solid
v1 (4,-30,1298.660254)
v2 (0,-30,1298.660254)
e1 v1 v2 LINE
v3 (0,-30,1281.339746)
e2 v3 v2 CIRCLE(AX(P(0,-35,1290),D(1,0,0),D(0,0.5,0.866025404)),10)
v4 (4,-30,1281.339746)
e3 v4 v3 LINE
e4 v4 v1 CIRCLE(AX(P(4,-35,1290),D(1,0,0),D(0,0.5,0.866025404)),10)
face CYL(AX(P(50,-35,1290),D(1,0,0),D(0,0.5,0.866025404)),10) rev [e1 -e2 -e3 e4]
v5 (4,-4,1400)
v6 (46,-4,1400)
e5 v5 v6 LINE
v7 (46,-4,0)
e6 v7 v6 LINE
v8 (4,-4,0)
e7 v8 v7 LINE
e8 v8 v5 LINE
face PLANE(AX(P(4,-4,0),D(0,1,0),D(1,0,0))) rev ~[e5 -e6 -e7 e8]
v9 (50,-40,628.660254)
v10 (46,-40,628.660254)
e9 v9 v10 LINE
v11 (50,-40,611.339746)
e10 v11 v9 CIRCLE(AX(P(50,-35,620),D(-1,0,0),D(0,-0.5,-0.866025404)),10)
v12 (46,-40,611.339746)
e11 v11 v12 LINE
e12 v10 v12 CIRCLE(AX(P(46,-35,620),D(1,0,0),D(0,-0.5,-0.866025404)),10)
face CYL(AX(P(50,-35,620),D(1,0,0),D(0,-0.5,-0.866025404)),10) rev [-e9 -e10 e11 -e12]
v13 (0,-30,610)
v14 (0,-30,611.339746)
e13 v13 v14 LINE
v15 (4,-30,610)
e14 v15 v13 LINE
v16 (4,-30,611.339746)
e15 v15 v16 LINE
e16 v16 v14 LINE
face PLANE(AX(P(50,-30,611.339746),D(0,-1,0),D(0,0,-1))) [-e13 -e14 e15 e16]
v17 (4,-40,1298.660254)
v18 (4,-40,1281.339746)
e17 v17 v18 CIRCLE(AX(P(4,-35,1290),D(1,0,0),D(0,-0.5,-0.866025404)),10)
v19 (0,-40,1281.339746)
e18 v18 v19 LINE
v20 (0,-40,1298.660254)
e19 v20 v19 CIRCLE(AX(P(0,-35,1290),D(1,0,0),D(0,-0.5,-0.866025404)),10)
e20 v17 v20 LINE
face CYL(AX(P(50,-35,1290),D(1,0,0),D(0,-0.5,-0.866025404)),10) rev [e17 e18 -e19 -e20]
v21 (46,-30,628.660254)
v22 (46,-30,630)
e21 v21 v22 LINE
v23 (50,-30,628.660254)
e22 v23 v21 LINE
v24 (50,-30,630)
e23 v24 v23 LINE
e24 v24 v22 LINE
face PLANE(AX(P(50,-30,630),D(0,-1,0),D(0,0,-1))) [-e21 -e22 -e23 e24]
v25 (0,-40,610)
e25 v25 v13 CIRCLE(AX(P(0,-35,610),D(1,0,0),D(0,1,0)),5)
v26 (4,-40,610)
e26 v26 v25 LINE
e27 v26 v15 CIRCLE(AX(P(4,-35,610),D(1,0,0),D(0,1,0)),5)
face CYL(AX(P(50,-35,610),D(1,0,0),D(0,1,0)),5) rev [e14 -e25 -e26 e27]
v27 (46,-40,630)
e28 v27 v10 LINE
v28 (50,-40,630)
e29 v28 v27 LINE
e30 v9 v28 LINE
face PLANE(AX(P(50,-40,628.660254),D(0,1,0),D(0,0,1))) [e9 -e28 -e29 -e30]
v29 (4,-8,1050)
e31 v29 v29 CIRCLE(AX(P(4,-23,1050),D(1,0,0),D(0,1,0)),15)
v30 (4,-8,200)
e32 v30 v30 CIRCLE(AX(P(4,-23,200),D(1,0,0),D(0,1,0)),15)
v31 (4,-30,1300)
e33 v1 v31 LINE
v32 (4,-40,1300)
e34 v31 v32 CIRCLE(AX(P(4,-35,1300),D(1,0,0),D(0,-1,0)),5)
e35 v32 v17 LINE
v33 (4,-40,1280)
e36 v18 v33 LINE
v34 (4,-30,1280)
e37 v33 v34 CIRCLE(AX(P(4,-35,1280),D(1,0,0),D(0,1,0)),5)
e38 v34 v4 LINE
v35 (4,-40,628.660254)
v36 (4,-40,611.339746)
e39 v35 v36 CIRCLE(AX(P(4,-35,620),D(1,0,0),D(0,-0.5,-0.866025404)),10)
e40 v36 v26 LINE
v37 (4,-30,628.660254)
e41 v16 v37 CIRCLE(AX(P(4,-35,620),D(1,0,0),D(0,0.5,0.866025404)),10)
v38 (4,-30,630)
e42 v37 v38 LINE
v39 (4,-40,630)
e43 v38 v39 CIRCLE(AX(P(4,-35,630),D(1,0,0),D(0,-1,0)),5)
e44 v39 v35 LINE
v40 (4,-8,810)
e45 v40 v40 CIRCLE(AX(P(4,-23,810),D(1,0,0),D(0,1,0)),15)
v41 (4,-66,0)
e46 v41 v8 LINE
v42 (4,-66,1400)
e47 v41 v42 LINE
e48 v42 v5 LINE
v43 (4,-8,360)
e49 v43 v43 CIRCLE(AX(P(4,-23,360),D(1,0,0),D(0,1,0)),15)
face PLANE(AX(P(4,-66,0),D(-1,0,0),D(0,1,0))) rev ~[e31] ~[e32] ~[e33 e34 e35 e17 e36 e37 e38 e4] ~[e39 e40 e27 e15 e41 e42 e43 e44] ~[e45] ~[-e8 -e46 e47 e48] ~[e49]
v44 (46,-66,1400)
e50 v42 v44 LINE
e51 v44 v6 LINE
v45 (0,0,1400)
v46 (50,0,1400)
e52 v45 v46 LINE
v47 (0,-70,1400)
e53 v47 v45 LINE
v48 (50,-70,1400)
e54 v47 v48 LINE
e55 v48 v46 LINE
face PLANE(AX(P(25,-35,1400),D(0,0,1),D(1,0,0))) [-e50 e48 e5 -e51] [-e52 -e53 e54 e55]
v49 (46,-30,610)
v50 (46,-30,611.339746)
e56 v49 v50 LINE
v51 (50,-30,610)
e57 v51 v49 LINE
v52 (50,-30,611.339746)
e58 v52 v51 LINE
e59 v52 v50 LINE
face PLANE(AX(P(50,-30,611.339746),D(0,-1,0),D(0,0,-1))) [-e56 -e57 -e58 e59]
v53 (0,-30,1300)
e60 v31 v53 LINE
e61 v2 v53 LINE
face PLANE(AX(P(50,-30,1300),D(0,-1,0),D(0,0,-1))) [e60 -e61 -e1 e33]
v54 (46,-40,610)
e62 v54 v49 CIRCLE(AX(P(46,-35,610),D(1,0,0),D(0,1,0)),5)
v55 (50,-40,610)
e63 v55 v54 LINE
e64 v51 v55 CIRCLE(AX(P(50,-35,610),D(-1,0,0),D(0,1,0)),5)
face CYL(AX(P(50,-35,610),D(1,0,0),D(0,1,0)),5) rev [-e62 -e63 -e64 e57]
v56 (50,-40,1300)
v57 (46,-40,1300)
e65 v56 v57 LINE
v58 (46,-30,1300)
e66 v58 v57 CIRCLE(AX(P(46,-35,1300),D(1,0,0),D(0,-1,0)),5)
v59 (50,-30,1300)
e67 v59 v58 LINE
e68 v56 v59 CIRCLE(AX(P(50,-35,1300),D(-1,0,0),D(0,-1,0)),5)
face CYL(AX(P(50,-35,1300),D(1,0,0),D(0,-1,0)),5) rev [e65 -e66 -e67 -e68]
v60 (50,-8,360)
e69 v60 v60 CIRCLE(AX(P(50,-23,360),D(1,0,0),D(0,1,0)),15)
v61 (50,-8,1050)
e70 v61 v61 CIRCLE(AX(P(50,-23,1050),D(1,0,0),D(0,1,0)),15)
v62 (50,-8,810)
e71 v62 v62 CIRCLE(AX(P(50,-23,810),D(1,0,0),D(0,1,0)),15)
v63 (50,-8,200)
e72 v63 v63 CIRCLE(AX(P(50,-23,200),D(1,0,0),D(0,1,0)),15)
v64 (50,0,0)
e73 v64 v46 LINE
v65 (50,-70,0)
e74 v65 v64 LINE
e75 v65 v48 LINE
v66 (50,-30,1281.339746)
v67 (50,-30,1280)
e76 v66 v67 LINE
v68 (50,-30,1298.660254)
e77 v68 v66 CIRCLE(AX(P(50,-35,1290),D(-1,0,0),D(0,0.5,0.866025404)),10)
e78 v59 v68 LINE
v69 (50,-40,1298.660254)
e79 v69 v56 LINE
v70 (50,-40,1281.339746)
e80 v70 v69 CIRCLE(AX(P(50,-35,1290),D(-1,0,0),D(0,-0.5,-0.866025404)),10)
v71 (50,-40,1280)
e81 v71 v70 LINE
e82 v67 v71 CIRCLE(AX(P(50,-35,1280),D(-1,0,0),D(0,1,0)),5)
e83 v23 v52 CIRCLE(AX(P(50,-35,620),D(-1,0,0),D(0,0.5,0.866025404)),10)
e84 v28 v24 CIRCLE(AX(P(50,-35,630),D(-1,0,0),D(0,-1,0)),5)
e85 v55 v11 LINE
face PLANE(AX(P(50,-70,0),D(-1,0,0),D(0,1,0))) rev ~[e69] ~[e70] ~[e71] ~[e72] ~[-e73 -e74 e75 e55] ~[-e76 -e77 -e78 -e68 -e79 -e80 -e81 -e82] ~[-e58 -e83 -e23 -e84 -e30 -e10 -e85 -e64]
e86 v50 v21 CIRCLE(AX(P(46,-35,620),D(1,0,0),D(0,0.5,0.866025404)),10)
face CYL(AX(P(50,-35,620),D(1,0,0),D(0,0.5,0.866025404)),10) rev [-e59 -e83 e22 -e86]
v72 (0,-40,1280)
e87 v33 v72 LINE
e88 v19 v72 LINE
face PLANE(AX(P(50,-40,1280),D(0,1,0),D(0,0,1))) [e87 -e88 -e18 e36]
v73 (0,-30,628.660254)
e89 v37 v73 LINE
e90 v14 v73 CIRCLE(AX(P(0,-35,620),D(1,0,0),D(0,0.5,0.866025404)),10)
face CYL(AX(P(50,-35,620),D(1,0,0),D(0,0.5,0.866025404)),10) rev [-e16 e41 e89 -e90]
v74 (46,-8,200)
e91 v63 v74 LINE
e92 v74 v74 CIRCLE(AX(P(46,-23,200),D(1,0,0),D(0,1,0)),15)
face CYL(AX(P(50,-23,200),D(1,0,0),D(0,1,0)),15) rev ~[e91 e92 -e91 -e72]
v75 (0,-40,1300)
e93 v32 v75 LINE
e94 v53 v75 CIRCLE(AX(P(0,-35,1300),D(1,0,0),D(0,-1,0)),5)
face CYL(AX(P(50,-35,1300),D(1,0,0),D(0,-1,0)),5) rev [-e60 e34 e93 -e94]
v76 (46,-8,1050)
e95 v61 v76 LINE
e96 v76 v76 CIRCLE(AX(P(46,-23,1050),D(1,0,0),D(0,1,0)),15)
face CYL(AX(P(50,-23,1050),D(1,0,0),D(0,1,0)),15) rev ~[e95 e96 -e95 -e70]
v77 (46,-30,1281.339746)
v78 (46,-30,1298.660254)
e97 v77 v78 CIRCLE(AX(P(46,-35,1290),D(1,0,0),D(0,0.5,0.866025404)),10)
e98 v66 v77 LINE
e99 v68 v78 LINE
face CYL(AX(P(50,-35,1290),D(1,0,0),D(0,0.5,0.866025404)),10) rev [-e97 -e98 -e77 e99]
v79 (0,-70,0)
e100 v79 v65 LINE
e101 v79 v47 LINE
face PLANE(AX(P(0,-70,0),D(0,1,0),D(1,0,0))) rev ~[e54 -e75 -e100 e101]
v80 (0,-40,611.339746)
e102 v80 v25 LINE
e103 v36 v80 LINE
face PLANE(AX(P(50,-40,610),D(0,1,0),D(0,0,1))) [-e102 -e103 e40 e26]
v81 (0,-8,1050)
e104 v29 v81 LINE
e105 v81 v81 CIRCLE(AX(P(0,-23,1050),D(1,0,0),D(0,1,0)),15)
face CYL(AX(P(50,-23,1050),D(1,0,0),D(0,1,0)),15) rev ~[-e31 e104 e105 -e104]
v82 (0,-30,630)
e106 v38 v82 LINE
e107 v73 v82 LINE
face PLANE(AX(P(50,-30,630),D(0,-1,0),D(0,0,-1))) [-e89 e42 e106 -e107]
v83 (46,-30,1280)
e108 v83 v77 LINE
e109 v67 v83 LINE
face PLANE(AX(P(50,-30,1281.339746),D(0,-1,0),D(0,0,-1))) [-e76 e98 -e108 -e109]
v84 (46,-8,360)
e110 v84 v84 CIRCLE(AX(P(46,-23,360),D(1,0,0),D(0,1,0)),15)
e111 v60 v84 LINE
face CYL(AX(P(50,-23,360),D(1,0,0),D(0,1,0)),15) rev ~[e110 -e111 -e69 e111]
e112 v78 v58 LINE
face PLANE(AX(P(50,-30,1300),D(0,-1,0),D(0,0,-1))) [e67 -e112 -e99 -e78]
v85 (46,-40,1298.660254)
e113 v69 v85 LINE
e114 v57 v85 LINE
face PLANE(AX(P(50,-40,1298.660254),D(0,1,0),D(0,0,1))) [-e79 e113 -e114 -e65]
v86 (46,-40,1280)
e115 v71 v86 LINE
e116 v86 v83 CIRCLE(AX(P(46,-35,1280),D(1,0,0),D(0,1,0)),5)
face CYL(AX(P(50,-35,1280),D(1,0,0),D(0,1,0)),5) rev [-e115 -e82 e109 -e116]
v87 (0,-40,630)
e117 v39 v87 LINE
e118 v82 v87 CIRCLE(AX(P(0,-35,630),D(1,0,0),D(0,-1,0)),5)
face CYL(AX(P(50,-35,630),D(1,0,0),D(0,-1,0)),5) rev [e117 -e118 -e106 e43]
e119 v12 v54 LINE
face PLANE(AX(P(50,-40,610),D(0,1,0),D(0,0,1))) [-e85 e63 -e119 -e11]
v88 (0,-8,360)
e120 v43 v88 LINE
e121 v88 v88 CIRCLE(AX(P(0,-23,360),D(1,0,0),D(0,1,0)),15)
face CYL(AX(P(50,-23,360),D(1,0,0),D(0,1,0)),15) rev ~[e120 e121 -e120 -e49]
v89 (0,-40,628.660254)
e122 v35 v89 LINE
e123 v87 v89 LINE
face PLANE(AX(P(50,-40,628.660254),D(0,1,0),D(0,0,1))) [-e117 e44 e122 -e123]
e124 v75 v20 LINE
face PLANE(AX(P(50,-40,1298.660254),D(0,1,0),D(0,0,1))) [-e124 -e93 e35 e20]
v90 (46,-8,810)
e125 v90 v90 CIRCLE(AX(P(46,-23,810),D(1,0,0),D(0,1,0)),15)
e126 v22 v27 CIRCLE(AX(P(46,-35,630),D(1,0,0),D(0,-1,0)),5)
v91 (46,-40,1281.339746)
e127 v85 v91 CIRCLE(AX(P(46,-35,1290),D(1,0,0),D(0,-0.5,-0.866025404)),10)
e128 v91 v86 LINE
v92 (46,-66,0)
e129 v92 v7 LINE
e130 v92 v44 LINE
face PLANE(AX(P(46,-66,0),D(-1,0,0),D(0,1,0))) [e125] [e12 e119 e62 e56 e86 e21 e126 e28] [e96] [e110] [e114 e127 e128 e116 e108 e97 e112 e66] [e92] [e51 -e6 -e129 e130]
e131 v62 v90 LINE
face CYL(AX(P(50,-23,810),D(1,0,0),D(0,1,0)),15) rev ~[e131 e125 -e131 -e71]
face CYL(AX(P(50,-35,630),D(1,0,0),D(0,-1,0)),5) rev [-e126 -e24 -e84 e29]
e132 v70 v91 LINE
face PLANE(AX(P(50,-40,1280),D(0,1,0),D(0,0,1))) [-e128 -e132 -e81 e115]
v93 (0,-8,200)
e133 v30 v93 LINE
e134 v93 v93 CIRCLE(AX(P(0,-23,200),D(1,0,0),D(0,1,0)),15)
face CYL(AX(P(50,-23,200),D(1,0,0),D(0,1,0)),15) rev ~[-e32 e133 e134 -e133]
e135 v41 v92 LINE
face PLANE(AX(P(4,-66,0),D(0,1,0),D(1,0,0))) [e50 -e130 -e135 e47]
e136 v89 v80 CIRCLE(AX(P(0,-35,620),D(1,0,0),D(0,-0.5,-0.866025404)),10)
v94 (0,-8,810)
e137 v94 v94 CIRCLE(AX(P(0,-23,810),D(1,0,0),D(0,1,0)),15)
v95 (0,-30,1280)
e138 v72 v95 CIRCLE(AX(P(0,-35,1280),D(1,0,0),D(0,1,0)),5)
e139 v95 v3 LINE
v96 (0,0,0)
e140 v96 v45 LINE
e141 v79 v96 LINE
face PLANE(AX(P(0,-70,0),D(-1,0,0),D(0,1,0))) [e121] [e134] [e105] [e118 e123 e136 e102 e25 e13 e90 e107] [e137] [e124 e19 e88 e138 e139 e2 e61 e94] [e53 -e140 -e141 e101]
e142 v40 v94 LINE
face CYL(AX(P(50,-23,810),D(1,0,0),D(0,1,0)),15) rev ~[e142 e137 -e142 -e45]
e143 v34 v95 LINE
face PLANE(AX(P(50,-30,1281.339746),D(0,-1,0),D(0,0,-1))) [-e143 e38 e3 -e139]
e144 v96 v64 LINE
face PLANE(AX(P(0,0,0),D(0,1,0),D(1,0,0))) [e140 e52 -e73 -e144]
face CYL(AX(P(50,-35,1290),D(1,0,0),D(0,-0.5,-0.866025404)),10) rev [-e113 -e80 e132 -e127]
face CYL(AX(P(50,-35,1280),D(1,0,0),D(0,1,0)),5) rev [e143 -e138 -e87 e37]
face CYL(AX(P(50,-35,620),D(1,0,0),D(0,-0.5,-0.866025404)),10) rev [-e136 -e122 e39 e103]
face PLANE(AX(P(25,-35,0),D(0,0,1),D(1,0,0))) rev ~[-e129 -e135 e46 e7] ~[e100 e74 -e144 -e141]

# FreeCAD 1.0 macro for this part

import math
import FreeCAD as App
import Part
import Sketcher

doc = App.newDocument("Part")
body = doc.addObject("PartDesign::Body", "Body")

sketch1 = body.newObject("Sketcher::SketchObject", "Sketch")
sketch1.AttachmentSupport = (doc.getObject("XY_Plane"), [""])
sketch1.MapMode = "FlatFace"
sketch1.addGeometry(Part.LineSegment(App.Vector(0, 0, 0), App.Vector(0, -70, 0)), False)
sketch1.addGeometry(Part.LineSegment(App.Vector(0, -70, 0), App.Vector(50, -70, 0)), False)
sketch1.addGeometry(Part.LineSegment(App.Vector(50, -70, 0), App.Vector(50, 0, 0)), False)
sketch1.addGeometry(Part.LineSegment(App.Vector(50, 0, 0), App.Vector(0, 0, 0)), False)
sketch1.addGeometry(Part.LineSegment(App.Vector(46, -66, 0), App.Vector(4, -66, 0)), False)
sketch1.addGeometry(Part.LineSegment(App.Vector(4, -66, 0), App.Vector(4, -4, 0)), False)
sketch1.addGeometry(Part.LineSegment(App.Vector(4, -4, 0), App.Vector(46, -4, 0)), False)
sketch1.addGeometry(Part.LineSegment(App.Vector(46, -4, 0), App.Vector(46, -66, 0)), False)
sketch1.addConstraint(Sketcher.Constraint("Coincident", 0, 2, 1, 1))
sketch1.addConstraint(Sketcher.Constraint("Coincident", 1, 2, 2, 1))
sketch1.addConstraint(Sketcher.Constraint("Coincident", 2, 2, 3, 1))
sketch1.addConstraint(Sketcher.Constraint("Coincident", 3, 2, 0, 1))
sketch1.addConstraint(Sketcher.Constraint("Coincident", 4, 2, 5, 1))
sketch1.addConstraint(Sketcher.Constraint("Coincident", 5, 2, 6, 1))
sketch1.addConstraint(Sketcher.Constraint("Coincident", 6, 2, 7, 1))
sketch1.addConstraint(Sketcher.Constraint("Coincident", 7, 2, 4, 1))
sketch1.addConstraint(Sketcher.Constraint("Vertical", 0))
sketch1.addConstraint(Sketcher.Constraint("Horizontal", 1))
sketch1.addConstraint(Sketcher.Constraint("Vertical", 2))
sketch1.addConstraint(Sketcher.Constraint("Horizontal", 3))
sketch1.addConstraint(Sketcher.Constraint("Horizontal", 4))
sketch1.addConstraint(Sketcher.Constraint("Vertical", 5))
sketch1.addConstraint(Sketcher.Constraint("Horizontal", 6))
sketch1.addConstraint(Sketcher.Constraint("Vertical", 7))
sketch1.addConstraint(Sketcher.Constraint("Coincident", 3, 2, -1, 1))
sketch1.addConstraint(Sketcher.Constraint("DistanceX", 1, 1, 1, 2, 50.0))
sketch1.addConstraint(Sketcher.Constraint("DistanceX", 4, 2, 4, 1, 42.0))
sketch1.addConstraint(Sketcher.Constraint("DistanceY", 0, 2, 0, 1, 70.0))
sketch1.addConstraint(Sketcher.Constraint("DistanceY", 5, 1, 5, 2, 62.0))
sketch1.addConstraint(Sketcher.Constraint("DistanceX", -1, 1, 4, 2, 4.0))
sketch1.addConstraint(Sketcher.Constraint("DistanceY", 4, 2, -1, 1, 66.0))
pad1 = body.newObject("PartDesign::Pad", "Pad")
pad1.Profile = sketch1
pad1.Length = 1400

sketch2 = body.newObject("Sketcher::SketchObject", "Sketch001")
sketch2.AttachmentSupport = (doc.getObject("YZ_Plane"), [""])
sketch2.MapMode = "FlatFace"
sketch2.AttachmentOffset = App.Placement(App.Vector(0, 0, 50), App.Rotation())
sketch2.addGeometry(Part.Circle(App.Vector(-23, 1050, 0), App.Vector(0, 0, 1), 15), False)
sketch2.addGeometry(Part.Circle(App.Vector(-23, 200, 0), App.Vector(0, 0, 1), 15), False)
sketch2.addGeometry(Part.Circle(App.Vector(-23, 810, 0), App.Vector(0, 0, 1), 15), False)
sketch2.addGeometry(Part.Circle(App.Vector(-23, 360, 0), App.Vector(0, 0, 1), 15), False)
sketch2.addGeometry(Part.LineSegment(App.Vector(-30, 1280, 0), App.Vector(-30, 1281.339746, 0)), False)
sketch2.addGeometry(Part.ArcOfCircle(Part.Circle(App.Vector(-35, 1290, 0), App.Vector(0, 0, 1), 10), math.radians(-60), math.radians(60)), False)
sketch2.addGeometry(Part.LineSegment(App.Vector(-30, 1298.660254, 0), App.Vector(-30, 1300, 0)), False)
sketch2.addGeometry(Part.ArcOfCircle(Part.Circle(App.Vector(-35, 1300, 0), App.Vector(0, 0, 1), 5), math.radians(0), math.radians(180)), False)
sketch2.addGeometry(Part.LineSegment(App.Vector(-40, 1300, 0), App.Vector(-40, 1298.660254, 0)), False)
sketch2.addGeometry(Part.ArcOfCircle(Part.Circle(App.Vector(-35, 1290, 0), App.Vector(0, 0, 1), 10), math.radians(120), math.radians(240)), False)
sketch2.addGeometry(Part.LineSegment(App.Vector(-40, 1281.339746, 0), App.Vector(-40, 1280, 0)), False)
sketch2.addGeometry(Part.ArcOfCircle(Part.Circle(App.Vector(-35, 1280, 0), App.Vector(0, 0, 1), 5), math.radians(180), math.radians(360)), False)
sketch2.addGeometry(Part.LineSegment(App.Vector(-30, 610, 0), App.Vector(-30, 611.339746, 0)), False)
sketch2.addGeometry(Part.ArcOfCircle(Part.Circle(App.Vector(-35, 620, 0), App.Vector(0, 0, 1), 10), math.radians(-60), math.radians(60)), False)
sketch2.addGeometry(Part.LineSegment(App.Vector(-30, 628.660254, 0), App.Vector(-30, 630, 0)), False)
sketch2.addGeometry(Part.ArcOfCircle(Part.Circle(App.Vector(-35, 630, 0), App.Vector(0, 0, 1), 5), math.radians(0), math.radians(180)), False)
sketch2.addGeometry(Part.LineSegment(App.Vector(-40, 630, 0), App.Vector(-40, 628.660254, 0)), False)
sketch2.addGeometry(Part.ArcOfCircle(Part.Circle(App.Vector(-35, 620, 0), App.Vector(0, 0, 1), 10), math.radians(120), math.radians(240)), False)
sketch2.addGeometry(Part.LineSegment(App.Vector(-40, 611.339746, 0), App.Vector(-40, 610, 0)), False)
sketch2.addGeometry(Part.ArcOfCircle(Part.Circle(App.Vector(-35, 610, 0), App.Vector(0, 0, 1), 5), math.radians(180), math.radians(360)), False)
sketch2.addConstraint(Sketcher.Constraint("Coincident", 4, 2, 5, 1))
sketch2.addConstraint(Sketcher.Constraint("Coincident", 5, 2, 6, 1))
sketch2.addConstraint(Sketcher.Constraint("Tangent", 6, 2, 7, 1))
sketch2.addConstraint(Sketcher.Constraint("Tangent", 7, 2, 8, 1))
sketch2.addConstraint(Sketcher.Constraint("Coincident", 8, 2, 9, 1))
sketch2.addConstraint(Sketcher.Constraint("Coincident", 9, 2, 10, 1))
sketch2.addConstraint(Sketcher.Constraint("Tangent", 10, 2, 11, 1))
sketch2.addConstraint(Sketcher.Constraint("Tangent", 11, 2, 4, 1))
sketch2.addConstraint(Sketcher.Constraint("Coincident", 12, 2, 13, 1))
sketch2.addConstraint(Sketcher.Constraint("Coincident", 13, 2, 14, 1))
sketch2.addConstraint(Sketcher.Constraint("Tangent", 14, 2, 15, 1))
sketch2.addConstraint(Sketcher.Constraint("Tangent", 15, 2, 16, 1))
sketch2.addConstraint(Sketcher.Constraint("Coincident", 16, 2, 17, 1))
sketch2.addConstraint(Sketcher.Constraint("Coincident", 17, 2, 18, 1))
sketch2.addConstraint(Sketcher.Constraint("Tangent", 18, 2, 19, 1))
sketch2.addConstraint(Sketcher.Constraint("Tangent", 19, 2, 12, 1))
sketch2.addConstraint(Sketcher.Constraint("Vertical", 4))
sketch2.addConstraint(Sketcher.Constraint("Vertical", 6))
sketch2.addConstraint(Sketcher.Constraint("Vertical", 8))
sketch2.addConstraint(Sketcher.Constraint("Vertical", 10))
sketch2.addConstraint(Sketcher.Constraint("Vertical", 12))
sketch2.addConstraint(Sketcher.Constraint("Vertical", 14))
sketch2.addConstraint(Sketcher.Constraint("Vertical", 16))
sketch2.addConstraint(Sketcher.Constraint("Vertical", 18))
sketch2.addConstraint(Sketcher.Constraint("Coincident", 9, 3, 5, 3))
sketch2.addConstraint(Sketcher.Constraint("Coincident", 17, 3, 13, 3))
sketch2.addConstraint(Sketcher.Constraint("Equal", 0, 1))
sketch2.addConstraint(Sketcher.Constraint("Equal", 1, 2))
sketch2.addConstraint(Sketcher.Constraint("Equal", 2, 3))
sketch2.addConstraint(Sketcher.Constraint("Equal", 5, 9))
sketch2.addConstraint(Sketcher.Constraint("Equal", 7, 11))
sketch2.addConstraint(Sketcher.Constraint("Equal", 9, 13))
sketch2.addConstraint(Sketcher.Constraint("Equal", 11, 15))
sketch2.addConstraint(Sketcher.Constraint("Equal", 13, 17))
sketch2.addConstraint(Sketcher.Constraint("Equal", 15, 19))
sketch2.addConstraint(Sketcher.Constraint("Horizontal", 5, 2, 8, 2))
sketch2.addConstraint(Sketcher.Constraint("Horizontal", 4, 2, 9, 2))
sketch2.addConstraint(Sketcher.Constraint("Horizontal", 13, 2, 16, 2))
sketch2.addConstraint(Sketcher.Constraint("Horizontal", 12, 2, 17, 2))
sketch2.addConstraint(Sketcher.Constraint("Vertical", 0, 3, 1, 3))
sketch2.addConstraint(Sketcher.Constraint("Vertical", 1, 3, 2, 3))
sketch2.addConstraint(Sketcher.Constraint("Vertical", 2, 3, 3, 3))
sketch2.addConstraint(Sketcher.Constraint("Vertical", 11, 3, 13, 3))
sketch2.addConstraint(Sketcher.Constraint("Equal", 4, 6))
sketch2.addConstraint(Sketcher.Constraint("Equal", 10, 12))
sketch2.addConstraint(Sketcher.Constraint("Equal", 12, 14))
sketch2.addConstraint(Sketcher.Constraint("Diameter", 0, 30.0))
sketch2.addConstraint(Sketcher.Constraint("Radius", 5, 10.0))
sketch2.addConstraint(Sketcher.Constraint("Radius", 7, 5.0))
sketch2.addConstraint(Sketcher.Constraint("DistanceX", 0, 3, -1, 1, 23.0))
sketch2.addConstraint(Sketcher.Constraint("DistanceY", -1, 1, 0, 3, 1050.0))
sketch2.addConstraint(Sketcher.Constraint("DistanceY", -1, 1, 1, 3, 200.0))
sketch2.addConstraint(Sketcher.Constraint("DistanceY", -1, 1, 2, 3, 810.0))
sketch2.addConstraint(Sketcher.Constraint("DistanceY", -1, 1, 3, 3, 360.0))
sketch2.addConstraint(Sketcher.Constraint("DistanceX", 5, 3, -1, 1, 35.0))
sketch2.addConstraint(Sketcher.Constraint("DistanceY", -1, 1, 5, 3, 1290.0))
sketch2.addConstraint(Sketcher.Constraint("DistanceY", -1, 1, 7, 3, 1300.0))
sketch2.addConstraint(Sketcher.Constraint("DistanceY", -1, 1, 13, 3, 620.0))
pocket1 = body.newObject("PartDesign::Pocket", "Pocket")
pocket1.Profile = sketch2
pocket1.Type = "ThroughAll"

doc.recompute()
